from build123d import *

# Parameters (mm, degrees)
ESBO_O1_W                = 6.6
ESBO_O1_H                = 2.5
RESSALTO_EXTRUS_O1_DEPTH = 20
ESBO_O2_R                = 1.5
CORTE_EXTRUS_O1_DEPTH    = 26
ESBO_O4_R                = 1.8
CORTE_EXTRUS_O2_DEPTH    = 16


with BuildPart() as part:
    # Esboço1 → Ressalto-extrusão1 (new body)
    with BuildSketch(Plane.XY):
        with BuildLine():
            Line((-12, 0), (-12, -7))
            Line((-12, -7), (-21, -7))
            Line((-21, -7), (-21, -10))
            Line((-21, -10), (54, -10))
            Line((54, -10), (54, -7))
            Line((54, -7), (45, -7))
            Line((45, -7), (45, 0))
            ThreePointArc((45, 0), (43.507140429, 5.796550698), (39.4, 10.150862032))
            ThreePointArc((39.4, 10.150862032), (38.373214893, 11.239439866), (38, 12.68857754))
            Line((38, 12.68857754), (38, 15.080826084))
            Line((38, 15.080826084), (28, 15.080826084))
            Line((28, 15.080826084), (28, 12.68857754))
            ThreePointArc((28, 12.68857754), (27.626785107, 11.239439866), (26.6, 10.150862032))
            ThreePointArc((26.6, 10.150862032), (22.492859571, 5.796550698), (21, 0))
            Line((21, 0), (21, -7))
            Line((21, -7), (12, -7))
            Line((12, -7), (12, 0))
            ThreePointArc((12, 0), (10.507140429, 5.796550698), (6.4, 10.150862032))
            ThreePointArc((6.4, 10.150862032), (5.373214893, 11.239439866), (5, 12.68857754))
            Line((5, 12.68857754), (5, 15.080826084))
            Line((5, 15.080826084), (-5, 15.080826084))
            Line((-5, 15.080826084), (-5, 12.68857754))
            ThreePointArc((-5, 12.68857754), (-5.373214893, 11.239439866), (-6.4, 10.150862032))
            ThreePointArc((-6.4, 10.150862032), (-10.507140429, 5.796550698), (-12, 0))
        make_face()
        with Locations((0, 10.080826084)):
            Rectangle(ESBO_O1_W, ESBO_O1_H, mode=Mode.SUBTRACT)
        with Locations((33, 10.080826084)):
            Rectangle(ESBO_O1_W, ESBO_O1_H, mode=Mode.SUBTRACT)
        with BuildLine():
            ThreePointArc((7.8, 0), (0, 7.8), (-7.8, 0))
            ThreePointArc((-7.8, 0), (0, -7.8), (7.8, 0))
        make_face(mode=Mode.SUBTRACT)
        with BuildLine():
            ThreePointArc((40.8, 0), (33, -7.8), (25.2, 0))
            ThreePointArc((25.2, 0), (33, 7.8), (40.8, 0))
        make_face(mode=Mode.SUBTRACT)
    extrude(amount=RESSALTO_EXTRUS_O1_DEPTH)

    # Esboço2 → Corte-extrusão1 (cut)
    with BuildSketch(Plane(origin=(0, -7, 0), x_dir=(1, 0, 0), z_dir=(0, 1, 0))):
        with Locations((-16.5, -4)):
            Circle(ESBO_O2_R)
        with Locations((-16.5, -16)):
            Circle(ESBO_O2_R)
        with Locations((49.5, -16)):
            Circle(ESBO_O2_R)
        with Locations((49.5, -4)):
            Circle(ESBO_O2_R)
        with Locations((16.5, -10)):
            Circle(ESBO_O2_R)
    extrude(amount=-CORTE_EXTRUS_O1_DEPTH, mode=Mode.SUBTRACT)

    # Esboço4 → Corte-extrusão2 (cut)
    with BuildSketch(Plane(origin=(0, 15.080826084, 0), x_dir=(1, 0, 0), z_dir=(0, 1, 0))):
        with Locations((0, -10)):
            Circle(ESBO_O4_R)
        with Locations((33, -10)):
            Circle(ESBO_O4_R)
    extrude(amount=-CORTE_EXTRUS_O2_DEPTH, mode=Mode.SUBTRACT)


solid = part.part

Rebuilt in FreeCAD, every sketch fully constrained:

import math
import FreeCAD as App
import Part
import Sketcher

V = App.Vector

doc = App.newDocument("Part")
params = doc.addObject("Spreadsheet::Sheet", "Params")
for row, (alias, value) in enumerate([
    ("sketch1_radius", "12 mm"),
    ("sketch1_radius2", "3 mm"),
    ("sketch1_diameter", "15.6 mm"),
    ("sketch1_width", "9 mm"),
    ("sketch1_width2", "10 mm"),
    ("pad1_length", "20 mm"),
    ("sketch2_diameter", "3 mm"),
    ("pocket1_length", "26 mm"),
    ("sketch3_diameter", "3.6 mm"),
    ("pocket2_length", "16 mm"),
], start=1):
    params.set(f"A{row}", alias)
    params.set(f"B{row}", "=" + value)
    params.setAlias(f"B{row}", alias)

body = doc.addObject("PartDesign::Body", "Body")

# Sketch on XY plane
sketch1 = body.newObject("Sketcher::SketchObject", "Sketch")
sketch1.AttachmentSupport = (doc.getObject("XY_Plane"), [""])
sketch1.MapMode = "FlatFace"
sketch1.addGeometry(Part.LineSegment(V(-12, 0, 0), V(-12, -7, 0)), False)
sketch1.addGeometry(Part.LineSegment(V(-12, -7, 0), V(-21, -7, 0)), False)
sketch1.addGeometry(Part.LineSegment(V(-21, -7, 0), V(-21, -10, 0)), False)
sketch1.addGeometry(Part.LineSegment(V(-21, -10, 0), V(54, -10, 0)), False)
sketch1.addGeometry(Part.LineSegment(V(54, -10, 0), V(54, -7, 0)), False)
sketch1.addGeometry(Part.LineSegment(V(54, -7, 0), V(45, -7, 0)), False)
sketch1.addGeometry(Part.LineSegment(V(45, -7, 0), V(45, 0, 0)), False)
sketch1.addGeometry(Part.ArcOfCircle(Part.Circle(V(33, 0, 0), V(0, 0, 1), 12), math.radians(0), math.radians(58)), False)
sketch1.addGeometry(Part.ArcOfCircle(Part.Circle(V(41, 12.7, 0), V(0, 0, 1), 3), math.radians(-180), math.radians(-122)), False)
sketch1.addGeometry(Part.LineSegment(V(38, 12.7, 0), V(38, 15.1, 0)), False)
sketch1.addGeometry(Part.LineSegment(V(38, 15.1, 0), V(28, 15.1, 0)), False)
sketch1.addGeometry(Part.LineSegment(V(28, 15.1, 0), V(28, 12.7, 0)), False)
sketch1.addGeometry(Part.ArcOfCircle(Part.Circle(V(25, 12.7, 0), V(0, 0, 1), 3), math.radians(-58), math.radians(0)), False)
sketch1.addGeometry(Part.ArcOfCircle(Part.Circle(V(33, 0, 0), V(0, 0, 1), 12), math.radians(122), math.radians(180)), False)
sketch1.addGeometry(Part.LineSegment(V(21, 0, 0), V(21, -7, 0)), False)
sketch1.addGeometry(Part.LineSegment(V(21, -7, 0), V(12, -7, 0)), False)
sketch1.addGeometry(Part.LineSegment(V(12, -7, 0), V(12, 0, 0)), False)
sketch1.addGeometry(Part.ArcOfCircle(Part.Circle(V(0, 0, 0), V(0, 0, 1), 12), math.radians(0), math.radians(58)), False)
sketch1.addGeometry(Part.ArcOfCircle(Part.Circle(V(8, 12.7, 0), V(0, 0, 1), 3), math.radians(-180), math.radians(-122)), False)
sketch1.addGeometry(Part.LineSegment(V(5, 12.7, 0), V(5, 15.1, 0)), False)
sketch1.addGeometry(Part.LineSegment(V(5, 15.1, 0), V(-5, 15.1, 0)), False)
sketch1.addGeometry(Part.LineSegment(V(-5, 15.1, 0), V(-5, 12.7, 0)), False)
sketch1.addGeometry(Part.ArcOfCircle(Part.Circle(V(-8, 12.7, 0), V(0, 0, 1), 3), math.radians(-58), math.radians(0)), False)
sketch1.addGeometry(Part.ArcOfCircle(Part.Circle(V(0, 0, 0), V(0, 0, 1), 12), math.radians(122), math.radians(180)), False)
sketch1.addGeometry(Part.Circle(V(0, 0, 0), V(0, 0, 1), 7.8), False)
sketch1.addGeometry(Part.Circle(V(33, 0, 0), V(0, 0, 1), 7.8), False)
sketch1.addGeometry(Part.LineSegment(V(3.3, 8.8, 0), V(-3.3, 8.8, 0)), False)
sketch1.addGeometry(Part.LineSegment(V(-3.3, 8.8, 0), V(-3.3, 11.3, 0)), False)
sketch1.addGeometry(Part.LineSegment(V(-3.3, 11.3, 0), V(3.3, 11.3, 0)), False)
sketch1.addGeometry(Part.LineSegment(V(3.3, 11.3, 0), V(3.3, 8.8, 0)), False)
sketch1.addGeometry(Part.LineSegment(V(36.3, 8.8, 0), V(29.7, 8.8, 0)), False)
sketch1.addGeometry(Part.LineSegment(V(29.7, 8.8, 0), V(29.7, 11.3, 0)), False)
sketch1.addGeometry(Part.LineSegment(V(29.7, 11.3, 0), V(36.3, 11.3, 0)), False)
sketch1.addGeometry(Part.LineSegment(V(36.3, 11.3, 0), V(36.3, 8.8, 0)), False)
sketch1.addConstraint(Sketcher.Constraint("Coincident", 0, 2, 1, 1))
sketch1.addConstraint(Sketcher.Constraint("Coincident", 1, 2, 2, 1))
sketch1.addConstraint(Sketcher.Constraint("Coincident", 2, 2, 3, 1))
sketch1.addConstraint(Sketcher.Constraint("Coincident", 3, 2, 4, 1))
sketch1.addConstraint(Sketcher.Constraint("Coincident", 4, 2, 5, 1))
sketch1.addConstraint(Sketcher.Constraint("Coincident", 5, 2, 6, 1))
sketch1.addConstraint(Sketcher.Constraint("Tangent", 6, 2, 7, 1))
sketch1.addConstraint(Sketcher.Constraint("Tangent", 7, 2, 8, 2))
sketch1.addConstraint(Sketcher.Constraint("Tangent", 8, 1, 9, 1))
sketch1.addConstraint(Sketcher.Constraint("Coincident", 9, 2, 10, 1))
sketch1.addConstraint(Sketcher.Constraint("Coincident", 10, 2, 11, 1))
sketch1.addConstraint(Sketcher.Constraint("Tangent", 11, 2, 12, 2))
sketch1.addConstraint(Sketcher.Constraint("Tangent", 12, 1, 13, 1))
sketch1.addConstraint(Sketcher.Constraint("Tangent", 13, 2, 14, 1))
sketch1.addConstraint(Sketcher.Constraint("Coincident", 14, 2, 15, 1))
sketch1.addConstraint(Sketcher.Constraint("Coincident", 15, 2, 16, 1))
sketch1.addConstraint(Sketcher.Constraint("Tangent", 16, 2, 17, 1))
sketch1.addConstraint(Sketcher.Constraint("Tangent", 17, 2, 18, 2))
sketch1.addConstraint(Sketcher.Constraint("Tangent", 18, 1, 19, 1))
sketch1.addConstraint(Sketcher.Constraint("Coincident", 19, 2, 20, 1))
sketch1.addConstraint(Sketcher.Constraint("Coincident", 20, 2, 21, 1))
sketch1.addConstraint(Sketcher.Constraint("Tangent", 21, 2, 22, 2))
sketch1.addConstraint(Sketcher.Constraint("Tangent", 22, 1, 23, 1))
sketch1.addConstraint(Sketcher.Constraint("Tangent", 23, 2, 0, 1))
sketch1.addConstraint(Sketcher.Constraint("Coincident", 26, 2, 27, 1))
sketch1.addConstraint(Sketcher.Constraint("Coincident", 27, 2, 28, 1))
sketch1.addConstraint(Sketcher.Constraint("Coincident", 28, 2, 29, 1))
sketch1.addConstraint(Sketcher.Constraint("Coincident", 29, 2, 26, 1))
sketch1.addConstraint(Sketcher.Constraint("Coincident", 30, 2, 31, 1))
sketch1.addConstraint(Sketcher.Constraint("Coincident", 31, 2, 32, 1))
sketch1.addConstraint(Sketcher.Constraint("Coincident", 32, 2, 33, 1))
sketch1.addConstraint(Sketcher.Constraint("Coincident", 33, 2, 30, 1))
sketch1.addConstraint(Sketcher.Constraint("Vertical", 0))
sketch1.addConstraint(Sketcher.Constraint("Horizontal", 1))
sketch1.addConstraint(Sketcher.Constraint("Vertical", 2))
sketch1.addConstraint(Sketcher.Constraint("Horizontal", 3))
sketch1.addConstraint(Sketcher.Constraint("Vertical", 4))
sketch1.addConstraint(Sketcher.Constraint("Horizontal", 5))
sketch1.addConstraint(Sketcher.Constraint("Vertical", 6))
sketch1.addConstraint(Sketcher.Constraint("Vertical", 9))
sketch1.addConstraint(Sketcher.Constraint("Horizontal", 10))
sketch1.addConstraint(Sketcher.Constraint("Vertical", 11))
sketch1.addConstraint(Sketcher.Constraint("Vertical", 14))
sketch1.addConstraint(Sketcher.Constraint("Horizontal", 15))
sketch1.addConstraint(Sketcher.Constraint("Vertical", 16))
sketch1.addConstraint(Sketcher.Constraint("Vertical", 19))
sketch1.addConstraint(Sketcher.Constraint("Horizontal", 20))
sketch1.addConstraint(Sketcher.Constraint("Vertical", 21))
sketch1.addConstraint(Sketcher.Constraint("Horizontal", 26))
sketch1.addConstraint(Sketcher.Constraint("Vertical", 27))
sketch1.addConstraint(Sketcher.Constraint("Horizontal", 28))
sketch1.addConstraint(Sketcher.Constraint("Vertical", 29))
sketch1.addConstraint(Sketcher.Constraint("Horizontal", 30))
sketch1.addConstraint(Sketcher.Constraint("Vertical", 31))
sketch1.addConstraint(Sketcher.Constraint("Horizontal", 32))
sketch1.addConstraint(Sketcher.Constraint("Vertical", 33))
sketch1.addConstraint(Sketcher.Constraint("Coincident", 17, 3, -1, 1))
sketch1.addConstraint(Sketcher.Constraint("Coincident", 23, 3, -1, 1))
sketch1.addConstraint(Sketcher.Constraint("Coincident", 24, 3, -1, 1))
sketch1.addConstraint(Sketcher.Constraint("Coincident", 13, 3, 7, 3))
sketch1.addConstraint(Sketcher.Constraint("Coincident", 25, 3, 7, 3))
sketch1.addConstraint(Sketcher.Constraint("Equal", 8, 12))
sketch1.addConstraint(Sketcher.Constraint("Equal", 7, 13))
sketch1.addConstraint(Sketcher.Constraint("Equal", 13, 17))
sketch1.addConstraint(Sketcher.Constraint("Equal", 12, 18))
sketch1.addConstraint(Sketcher.Constraint("Equal", 18, 22))
sketch1.addConstraint(Sketcher.Constraint("Equal", 17, 23))
sketch1.addConstraint(Sketcher.Constraint("Equal", 24, 25))
sketch1.addConstraint(Sketcher.Constraint("Symmetric", 1, 2, 14, 2, -2))
sketch1.addConstraint(Sketcher.Constraint("PointOnObject", 7, 3, -1))
sketch1.addConstraint(Sketcher.Constraint("Horizontal", 8, 3, 12, 3))
sketch1.addConstraint(Sketcher.Constraint("Horizontal", 12, 3, 18, 3))
sketch1.addConstraint(Sketcher.Constraint("Horizontal", 18, 3, 22, 3))
sketch1.addConstraint(Sketcher.Constraint("Horizontal", 1, 2, 4, 2))
sketch1.addConstraint(Sketcher.Constraint("Horizontal", 10, 2, 19, 2))
sketch1.addConstraint(Sketcher.Constraint("Horizontal", 29, 2, 30, 2))
sketch1.addConstraint(Sketcher.Constraint("Horizontal", 28, 2, 31, 2))
sketch1.addConstraint(Sketcher.Constraint("Equal", 1, 5))
sketch1.addConstraint(Sketcher.Constraint("Equal", 28, 30))
sketch1.addConstraint(Sketcher.Constraint("Radius", 7, 12.0))
sketch1.addConstraint(Sketcher.Constraint("Radius", 8, 3.0))
sketch1.addConstraint(Sketcher.Constraint("Diameter", 24, 15.6))
sketch1.addConstraint(Sketcher.Constraint("DistanceX", 1, 2, 1, 1, 9.0))
sketch1.addConstraint(Sketcher.Constraint("DistanceX", 10, 2, 10, 1, 10.0))
sketch1.addConstraint(Sketcher.Constraint("DistanceY", 0, 2, 0, 1, 7.0))
sketch1.addConstraint(Sketcher.Constraint("DistanceY", 2, 2, 2, 1, 3.0))
sketch1.addConstraint(Sketcher.Constraint("DistanceX", 26, 2, 26, 1, 6.6))
sketch1.addConstraint(Sketcher.Constraint("DistanceY", 27, 1, 27, 2, 2.5))
sketch1.addConstraint(Sketcher.Constraint("DistanceX", 26, 2, -1, 1, 3.3))
sketch1.addConstraint(Sketcher.Constraint("DistanceX", -1, 1, 30, 2, 29.7))
sketch1.addConstraint(Sketcher.Constraint("DistanceY", 26, 2, 20, 2, 6.25))
sketch1.addConstraint(Sketcher.Constraint("DistanceY", 9, 1, 9, 2, 2.392249))
sketch1.setExpression("Constraints[79]", "Params.sketch1_radius")
sketch1.setExpression("Constraints[80]", "Params.sketch1_radius2")
sketch1.setExpression("Constraints[81]", "Params.sketch1_diameter")
sketch1.setExpression("Constraints[82]", "Params.sketch1_width")
sketch1.setExpression("Constraints[83]", "Params.sketch1_width2")
pad1 = body.newObject("PartDesign::Pad", "Pad")
pad1.Profile = sketch1
pad1.setExpression("Length", "Params.pad1_length")

# Sketch on XZ plane
sketch2 = body.newObject("Sketcher::SketchObject", "Sketch001")
sketch2.AttachmentSupport = (doc.getObject("XZ_Plane"), [""])
sketch2.MapMode = "FlatFace"
sketch2.AttachmentOffset = App.Placement(V(0, 0, 7), App.Rotation())
sketch2.addGeometry(Part.Circle(V(-16.5, 4, 0), V(0, 0, 1), 1.5), False)
sketch2.addGeometry(Part.Circle(V(-16.5, 16, 0), V(0, 0, 1), 1.5), False)
sketch2.addGeometry(Part.Circle(V(49.5, 16, 0), V(0, 0, 1), 1.5), False)
sketch2.addGeometry(Part.Circle(V(49.5, 4, 0), V(0, 0, 1), 1.5), False)
sketch2.addGeometry(Part.Circle(V(16.5, 10, 0), V(0, 0, 1), 1.5), False)
sketch2.addConstraint(Sketcher.Constraint("Equal", 0, 1))
sketch2.addConstraint(Sketcher.Constraint("Equal", 1, 2))
sketch2.addConstraint(Sketcher.Constraint("Equal", 2, 3))
sketch2.addConstraint(Sketcher.Constraint("Equal", 3, 4))
sketch2.addConstraint(Sketcher.Constraint("Horizontal", 1, 3, 2, 3))
sketch2.addConstraint(Sketcher.Constraint("Horizontal", 0, 3, 3, 3))
sketch2.addConstraint(Sketcher.Constraint("Vertical", 0, 3, 1, 3))
sketch2.addConstraint(Sketcher.Constraint("Vertical", 2, 3, 3, 3))
sketch2.addConstraint(Sketcher.Constraint("Diameter", 0, 3.0))
sketch2.addConstraint(Sketcher.Constraint("DistanceY", -1, 1, 0, 3, 4.0))
sketch2.addConstraint(Sketcher.Constraint("DistanceY", -1, 1, 1, 3, 16.0))
sketch2.addConstraint(Sketcher.Constraint("DistanceY", -1, 1, 4, 3, 10.0))
sketch2.addConstraint(Sketcher.Constraint("DistanceX", 1, 3, 2, 3, 66.0))
sketch2.addConstraint(Sketcher.Constraint("DistanceX", 0, 3, 4, 3, 33.0))
sketch2.addConstraint(Sketcher.Constraint("DistanceX", 0, 3, -1, 1, 16.5))
sketch2.setExpression("Constraints[8]", "Params.sketch2_diameter")
pocket1 = body.newObject("PartDesign::Pocket", "Pocket")
pocket1.Profile = sketch2
pocket1.setExpression("Length", "Params.pocket1_length")
pocket1.Reversed = True

# Sketch on XZ plane
sketch3 = body.newObject("Sketcher::SketchObject", "Sketch002")
sketch3.AttachmentSupport = (doc.getObject("XZ_Plane"), [""])
sketch3.MapMode = "FlatFace"
sketch3.AttachmentOffset = App.Placement(V(0, 0, -15.080826), App.Rotation())
sketch3.addGeometry(Part.Circle(V(0, 10, 0), V(0, 0, 1), 1.8), False)
sketch3.addGeometry(Part.Circle(V(33, 10, 0), V(0, 0, 1), 1.8), False)
sketch3.addConstraint(Sketcher.Constraint("Equal", 0, 1))
sketch3.addConstraint(Sketcher.Constraint("PointOnObject", 0, 3, -2))
sketch3.addConstraint(Sketcher.Constraint("Horizontal", 0, 3, 1, 3))
sketch3.addConstraint(Sketcher.Constraint("Diameter", 0, 3.6))
sketch3.addConstraint(Sketcher.Constraint("DistanceY", -1, 1, 0, 3, 10.0))
sketch3.addConstraint(Sketcher.Constraint("DistanceX", -1, 1, 1, 3, 33.0))
sketch3.setExpression("Constraints[3]", "Params.sketch3_diameter")
pocket2 = body.newObject("PartDesign::Pocket", "Pocket001")
pocket2.Profile = sketch3
pocket2.setExpression("Length", "Params.pocket2_length")
pocket2.Reversed = True

doc.recompute()
